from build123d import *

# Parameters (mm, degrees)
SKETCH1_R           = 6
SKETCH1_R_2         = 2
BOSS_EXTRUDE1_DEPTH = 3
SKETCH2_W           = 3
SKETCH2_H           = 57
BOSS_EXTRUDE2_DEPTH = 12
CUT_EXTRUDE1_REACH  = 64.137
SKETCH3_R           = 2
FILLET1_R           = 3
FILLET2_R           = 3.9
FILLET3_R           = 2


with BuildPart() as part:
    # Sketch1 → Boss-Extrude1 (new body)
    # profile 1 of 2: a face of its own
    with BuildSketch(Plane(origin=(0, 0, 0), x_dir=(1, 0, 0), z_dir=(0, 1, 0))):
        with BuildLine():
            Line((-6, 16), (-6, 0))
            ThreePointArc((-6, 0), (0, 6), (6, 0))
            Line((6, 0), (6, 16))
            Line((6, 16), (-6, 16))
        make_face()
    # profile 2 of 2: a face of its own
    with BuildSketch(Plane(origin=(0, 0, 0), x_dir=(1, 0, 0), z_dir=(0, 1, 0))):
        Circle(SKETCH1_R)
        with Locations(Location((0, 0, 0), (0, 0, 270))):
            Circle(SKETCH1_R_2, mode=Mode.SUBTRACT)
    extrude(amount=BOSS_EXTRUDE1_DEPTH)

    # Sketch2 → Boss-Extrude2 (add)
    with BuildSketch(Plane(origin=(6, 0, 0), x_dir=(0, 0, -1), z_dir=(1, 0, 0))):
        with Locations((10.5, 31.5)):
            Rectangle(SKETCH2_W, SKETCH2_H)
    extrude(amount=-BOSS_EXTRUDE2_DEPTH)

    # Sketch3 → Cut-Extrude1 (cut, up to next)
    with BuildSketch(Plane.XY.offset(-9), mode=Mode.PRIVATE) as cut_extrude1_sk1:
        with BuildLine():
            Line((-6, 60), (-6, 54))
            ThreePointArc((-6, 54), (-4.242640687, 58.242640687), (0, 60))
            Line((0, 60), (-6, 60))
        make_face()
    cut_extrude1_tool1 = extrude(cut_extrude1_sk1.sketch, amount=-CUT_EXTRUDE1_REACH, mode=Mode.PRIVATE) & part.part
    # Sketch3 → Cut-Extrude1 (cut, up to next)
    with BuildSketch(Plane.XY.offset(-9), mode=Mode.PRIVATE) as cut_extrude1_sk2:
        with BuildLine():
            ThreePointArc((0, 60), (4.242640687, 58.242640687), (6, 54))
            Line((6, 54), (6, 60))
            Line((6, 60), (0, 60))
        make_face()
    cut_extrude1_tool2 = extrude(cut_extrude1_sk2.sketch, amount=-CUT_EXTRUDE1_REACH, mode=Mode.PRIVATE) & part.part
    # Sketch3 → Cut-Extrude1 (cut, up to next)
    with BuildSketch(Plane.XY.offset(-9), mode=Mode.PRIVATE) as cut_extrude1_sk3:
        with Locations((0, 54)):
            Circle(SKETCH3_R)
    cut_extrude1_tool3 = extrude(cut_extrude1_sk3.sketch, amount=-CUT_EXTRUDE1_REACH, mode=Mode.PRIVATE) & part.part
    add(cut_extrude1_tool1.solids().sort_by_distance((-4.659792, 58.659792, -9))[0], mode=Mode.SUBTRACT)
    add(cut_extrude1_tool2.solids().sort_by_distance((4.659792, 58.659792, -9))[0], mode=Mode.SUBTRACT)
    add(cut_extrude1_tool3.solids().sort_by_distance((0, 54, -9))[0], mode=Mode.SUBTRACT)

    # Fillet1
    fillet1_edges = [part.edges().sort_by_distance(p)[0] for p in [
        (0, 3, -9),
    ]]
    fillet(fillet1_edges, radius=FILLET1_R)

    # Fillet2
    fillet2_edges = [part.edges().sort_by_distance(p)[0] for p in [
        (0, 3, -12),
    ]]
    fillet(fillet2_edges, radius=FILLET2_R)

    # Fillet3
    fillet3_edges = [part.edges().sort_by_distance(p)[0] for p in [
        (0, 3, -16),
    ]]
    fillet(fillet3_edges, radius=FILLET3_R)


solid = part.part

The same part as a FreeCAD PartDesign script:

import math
import FreeCAD as App
import Part
import Sketcher
from FreeCAD import Vector


def edges_at(feature, points):
    """Names of the edges that pass closest to the given points."""
    edges = feature.Shape.Edges
    near = lambda p: min(range(len(edges)), key=lambda i: edges[i].distToShape(Part.Vertex(*p))[0])
    return sorted({f"Edge{near(p) + 1}" for p in points})


def add_polygon(sketch, points):
    """Adds a closed chain of lines whose ends are joined by coincident constraints."""
    first, n = sketch.GeometryCount, len(points)
    for a, b in zip(points, points[1:] + points[:1]):
        sketch.addGeometry(Part.LineSegment(App.Vector(*a, 0), App.Vector(*b, 0)), False)
    for i in range(n):
        sketch.addConstraint(Sketcher.Constraint("Coincident", first + i, 2, first + (i + 1) % n, 1))

doc = App.newDocument("Part")
params = doc.addObject("Spreadsheet::Sheet", "Params")
for row, (alias, value) in enumerate([
    ("sketch1_diameter", "4 mm"),
    ("sketch1_radius", "6 mm"),
    ("sketch1_height", "16 mm"),
    ("pad1_length", "3 mm"),
    ("sketch2_width", "57 mm"),
    ("sketch2_height", "3 mm"),
    ("pad2_length", "12 mm"),
    ("sketch3_radius", "6 mm"),
    ("sketch4_radius", "6 mm"),
    ("sketch5_diameter", "4 mm"),
    ("fillet_radius", "3 mm"),
    ("fillet2_radius", "3.9 mm"),
    ("fillet3_radius", "2 mm"),
], start=1):
    params.set(f"A{row}", alias)
    params.set(f"B{row}", "=" + value)
    params.setAlias(f"B{row}", alias)

body = doc.addObject("PartDesign::Body", "Body")

# Sketch on XZ plane
sketch1 = doc.addObject("Sketcher::SketchObject", "Sketch")
body.addObject(sketch1)
sketch1.AttachmentSupport = (doc.XZ_Plane, [""])
sketch1.MapMode = "FlatFace"
sketch1.addGeometry([
    Part.LineSegment(Vector(-6, -16, 0), Vector(-6, 0, 0)),  # 0
    Part.ArcOfCircle(Part.Circle(Vector(0, 0, 0), Vector(0, 0, 1), 6), math.radians(0), math.radians(180)),  # 1
    Part.LineSegment(Vector(6, 0, 0), Vector(6, -16, 0)),  # 2
    Part.LineSegment(Vector(6, -16, 0), Vector(-6, -16, 0)),  # 3
    Part.Circle(Vector(0, 0, 0), Vector(0, 0, 1), 2),  # 4
], False)
sketch1.addConstraint([
    Sketcher.Constraint("Tangent", 0, 2, 1, 2),
    Sketcher.Constraint("Tangent", 1, 1, 2, 1),
    Sketcher.Constraint("Coincident", 2, 2, 3, 1),
    Sketcher.Constraint("Coincident", 3, 2, 0, 1),
    Sketcher.Constraint("Vertical", 0),
    Sketcher.Constraint("Vertical", 2),
    Sketcher.Constraint("Horizontal", 3),
    Sketcher.Constraint("Coincident", 1, 3, -1, 1),
    Sketcher.Constraint("Coincident", 4, 3, -1, 1),
    Sketcher.Constraint("Diameter", 4, 4.0),
    Sketcher.Constraint("Radius", 1, 6.0),
    Sketcher.Constraint("DistanceY", 0, 1, 0, 2, 16.0),
])
sketch1.setExpression("Constraints[9]", "Params.sketch1_diameter")
sketch1.setExpression("Constraints[10]", "Params.sketch1_radius")
sketch1.setExpression("Constraints[11]", "Params.sketch1_height")
pad1 = doc.addObject("PartDesign::Pad", "Pad")
body.addObject(pad1)
pad1.Profile = sketch1
pad1.setExpression("Length", "Params.pad1_length")
pad1.Reversed = True

# Sketch on YZ plane
sketch2 = doc.addObject("Sketcher::SketchObject", "Sketch001")
body.addObject(sketch2)
sketch2.AttachmentSupport = (doc.YZ_Plane, [""])
sketch2.MapMode = "FlatFace"
sketch2.AttachmentOffset = App.Placement(Vector(0, 0, 6), App.Rotation())
add_polygon(sketch2, [(60, -9), (3, -9), (3, -12), (60, -12)])  # lines 0-3
sketch2.addConstraint([
    Sketcher.Constraint("Horizontal", 0),
    Sketcher.Constraint("Vertical", 1),
    Sketcher.Constraint("Horizontal", 2),
    Sketcher.Constraint("Vertical", 3),
    Sketcher.Constraint("DistanceX", 0, 2, 0, 1, 57.0),
    Sketcher.Constraint("DistanceY", 1, 2, 1, 1, 3.0),
    Sketcher.Constraint("DistanceX", -1, 1, 0, 2, 3.0),
    Sketcher.Constraint("DistanceY", 0, 2, -1, 1, 9.0),
])
sketch2.setExpression("Constraints[8]", "Params.sketch2_width")
sketch2.setExpression("Constraints[9]", "Params.sketch2_height")
pad2 = doc.addObject("PartDesign::Pad", "Pad001")
body.addObject(pad2)
pad2.Profile = sketch2
pad2.setExpression("Length", "Params.pad2_length")
pad2.Reversed = True

# Sketch on XY plane
sketch3 = doc.addObject("Sketcher::SketchObject", "Sketch002")
body.addObject(sketch3)
sketch3.AttachmentSupport = (doc.XY_Plane, [""])
sketch3.MapMode = "FlatFace"
sketch3.AttachmentOffset = App.Placement(Vector(0, 0, -9), App.Rotation())
sketch3.addGeometry([
    Part.LineSegment(Vector(-6, 60, 0), Vector(-6, 54, 0)),
    Part.ArcOfCircle(Part.Circle(Vector(0, 54, 0), Vector(0, 0, 1), 6), math.radians(90), math.radians(180)),
    Part.LineSegment(Vector(0, 60, 0), Vector(-6, 60, 0)),
], False)
sketch3.addConstraint([
    Sketcher.Constraint("Tangent", 0, 2, 1, 2),
    Sketcher.Constraint("Tangent", 1, 1, 2, 1),
    Sketcher.Constraint("Coincident", 2, 2, 0, 1),
    Sketcher.Constraint("Vertical", 0),
    Sketcher.Constraint("Horizontal", 2),
    Sketcher.Constraint("PointOnObject", 1, 3, -2),
    Sketcher.Constraint("Radius", 1, 6.0),
    Sketcher.Constraint("DistanceY", -1, 1, 1, 3, 54.0),
])
sketch3.setExpression("Constraints[6]", "Params.sketch3_radius")
pocket1 = doc.addObject("PartDesign::Pocket", "Pocket")
body.addObject(pocket1)
pocket1.Profile = sketch3
pocket1.Type = "UpToFirst"

# Sketch on XY plane
sketch4 = doc.addObject("Sketcher::SketchObject", "Sketch003")
body.addObject(sketch4)
sketch4.AttachmentSupport = (doc.XY_Plane, [""])
sketch4.MapMode = "FlatFace"
sketch4.AttachmentOffset = App.Placement(Vector(0, 0, -9), App.Rotation())
sketch4.addGeometry([
    Part.ArcOfCircle(Part.Circle(Vector(0, 54, 0), Vector(0, 0, 1), 6), math.radians(0), math.radians(90)),
    Part.LineSegment(Vector(6, 54, 0), Vector(6, 60, 0)),
    Part.LineSegment(Vector(6, 60, 0), Vector(0, 60, 0)),
], False)
sketch4.addConstraint([
    Sketcher.Constraint("Tangent", 0, 1, 1, 1),
    Sketcher.Constraint("Coincident", 1, 2, 2, 1),
    Sketcher.Constraint("Tangent", 2, 2, 0, 2),
    Sketcher.Constraint("Vertical", 1),
    Sketcher.Constraint("Horizontal", 2),
    Sketcher.Constraint("PointOnObject", 0, 3, -2),
    Sketcher.Constraint("Radius", 0, 6.0),
    Sketcher.Constraint("DistanceY", -1, 1, 0, 3, 54.0),
])
sketch4.setExpression("Constraints[6]", "Params.sketch4_radius")
pocket2 = doc.addObject("PartDesign::Pocket", "Pocket001")
body.addObject(pocket2)
pocket2.Profile = sketch4
pocket2.Type = "UpToFirst"

# Sketch on XY plane
sketch5 = doc.addObject("Sketcher::SketchObject", "Sketch004")
body.addObject(sketch5)
sketch5.AttachmentSupport = (doc.XY_Plane, [""])
sketch5.MapMode = "FlatFace"
sketch5.AttachmentOffset = App.Placement(Vector(0, 0, -9), App.Rotation())
sketch5.addGeometry(Part.Circle(Vector(0, 54, 0), Vector(0, 0, 1), 2), False)
sketch5.addConstraint([
    Sketcher.Constraint("PointOnObject", 0, 3, -2),
    Sketcher.Constraint("Diameter", 0, 4.0),
    Sketcher.Constraint("DistanceY", -1, 1, 0, 3, 54.0),
])
sketch5.setExpression("Constraints[1]", "Params.sketch5_diameter")
pocket3 = doc.addObject("PartDesign::Pocket", "Pocket002")
body.addObject(pocket3)
pocket3.Profile = sketch5
pocket3.Type = "UpToFirst"
doc.recompute()

fillet = doc.addObject("PartDesign::Fillet", "Fillet")
body.addObject(fillet)
fillet.Base = (pocket3, edges_at(pocket3, [(0, 3, -9)]))
fillet.setExpression("Radius", "Params.fillet_radius")
doc.recompute()

fillet2 = doc.addObject("PartDesign::Fillet", "Fillet001")
body.addObject(fillet2)
fillet2.Base = (fillet, edges_at(fillet, [(0, 3, -12)]))
fillet2.setExpression("Radius", "Params.fillet2_radius")
doc.recompute()

fillet3 = doc.addObject("PartDesign::Fillet", "Fillet002")
body.addObject(fillet3)
fillet3.Base = (fillet2, edges_at(fillet2, [(0, 3, -16)]))
fillet3.setExpression("Radius", "Params.fillet3_radius")

doc.recompute()
